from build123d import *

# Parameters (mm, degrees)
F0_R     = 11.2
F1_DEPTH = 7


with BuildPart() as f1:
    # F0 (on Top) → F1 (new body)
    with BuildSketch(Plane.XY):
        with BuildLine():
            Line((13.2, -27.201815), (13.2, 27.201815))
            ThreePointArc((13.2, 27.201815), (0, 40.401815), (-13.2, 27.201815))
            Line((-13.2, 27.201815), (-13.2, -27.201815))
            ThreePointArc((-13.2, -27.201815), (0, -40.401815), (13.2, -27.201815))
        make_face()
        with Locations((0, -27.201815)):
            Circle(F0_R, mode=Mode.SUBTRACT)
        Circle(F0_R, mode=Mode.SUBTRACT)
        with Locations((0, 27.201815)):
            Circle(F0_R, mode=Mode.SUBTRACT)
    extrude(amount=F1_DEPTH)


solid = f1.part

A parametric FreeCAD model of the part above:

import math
import FreeCAD as App
import Part
import Sketcher
from FreeCAD import Vector

doc = App.newDocument("Part")
body = doc.addObject("PartDesign::Body", "Body")

# Sketch on XY plane
sketch1 = body.newObject("Sketcher::SketchObject", "Sketch")
sketch1.AttachmentSupport = (doc.getObject("XY_Plane"), [""])
sketch1.MapMode = "FlatFace"
sketch1.addGeometry(Part.LineSegment(Vector(13, -27, 0), Vector(13, 27, 0)), False)
sketch1.addGeometry(Part.ArcOfCircle(Part.Circle(Vector(0, 27, 0), Vector(0, 0, 1), 13), math.radians(0), math.radians(180)), False)
sketch1.addGeometry(Part.LineSegment(Vector(-13, 27, 0), Vector(-13, -27, 0)), False)
sketch1.addGeometry(Part.ArcOfCircle(Part.Circle(Vector(0, -27, 0), Vector(0, 0, 1), 13), math.radians(180), math.radians(360)), False)
sketch1.addGeometry(Part.Circle(Vector(0, -27, 0), Vector(0, 0, 1), 11), False)
sketch1.addGeometry(Part.Circle(Vector(0, 0, 0), Vector(0, 0, 1), 11), False)
sketch1.addGeometry(Part.Circle(Vector(0, 27, 0), Vector(0, 0, 1), 11), False)
sketch1.addConstraint(Sketcher.Constraint("Tangent", 0, 2, 1, 1))
sketch1.addConstraint(Sketcher.Constraint("Tangent", 1, 2, 2, 1))
sketch1.addConstraint(Sketcher.Constraint("Tangent", 2, 2, 3, 1))
sketch1.addConstraint(Sketcher.Constraint("Tangent", 3, 2, 0, 1))
sketch1.addConstraint(Sketcher.Constraint("Vertical", 0))
sketch1.addConstraint(Sketcher.Constraint("Vertical", 2))
sketch1.addConstraint(Sketcher.Constraint("Coincident", 5, 3, -1, 1))
sketch1.addConstraint(Sketcher.Constraint("Coincident", 4, 3, 3, 3))
sketch1.addConstraint(Sketcher.Constraint("Coincident", 6, 3, 1, 3))
sketch1.addConstraint(Sketcher.Constraint("Equal", 4, 5))
sketch1.addConstraint(Sketcher.Constraint("Equal", 5, 6))
sketch1.addConstraint(Sketcher.Constraint("Symmetric", 1, 3, 3, 3, -1, 1))
sketch1.addConstraint(Sketcher.Constraint("Diameter", 4, 22.4))
sketch1.addConstraint(Sketcher.Constraint("Radius", 1, 13.2))
sketch1.addConstraint(Sketcher.Constraint("DistanceY", 0, 1, 0, 2, 54.40363))
pad1 = body.newObject("PartDesign::Pad", "Pad")
pad1.Profile = sketch1
pad1.Length = 7

doc.recompute()
